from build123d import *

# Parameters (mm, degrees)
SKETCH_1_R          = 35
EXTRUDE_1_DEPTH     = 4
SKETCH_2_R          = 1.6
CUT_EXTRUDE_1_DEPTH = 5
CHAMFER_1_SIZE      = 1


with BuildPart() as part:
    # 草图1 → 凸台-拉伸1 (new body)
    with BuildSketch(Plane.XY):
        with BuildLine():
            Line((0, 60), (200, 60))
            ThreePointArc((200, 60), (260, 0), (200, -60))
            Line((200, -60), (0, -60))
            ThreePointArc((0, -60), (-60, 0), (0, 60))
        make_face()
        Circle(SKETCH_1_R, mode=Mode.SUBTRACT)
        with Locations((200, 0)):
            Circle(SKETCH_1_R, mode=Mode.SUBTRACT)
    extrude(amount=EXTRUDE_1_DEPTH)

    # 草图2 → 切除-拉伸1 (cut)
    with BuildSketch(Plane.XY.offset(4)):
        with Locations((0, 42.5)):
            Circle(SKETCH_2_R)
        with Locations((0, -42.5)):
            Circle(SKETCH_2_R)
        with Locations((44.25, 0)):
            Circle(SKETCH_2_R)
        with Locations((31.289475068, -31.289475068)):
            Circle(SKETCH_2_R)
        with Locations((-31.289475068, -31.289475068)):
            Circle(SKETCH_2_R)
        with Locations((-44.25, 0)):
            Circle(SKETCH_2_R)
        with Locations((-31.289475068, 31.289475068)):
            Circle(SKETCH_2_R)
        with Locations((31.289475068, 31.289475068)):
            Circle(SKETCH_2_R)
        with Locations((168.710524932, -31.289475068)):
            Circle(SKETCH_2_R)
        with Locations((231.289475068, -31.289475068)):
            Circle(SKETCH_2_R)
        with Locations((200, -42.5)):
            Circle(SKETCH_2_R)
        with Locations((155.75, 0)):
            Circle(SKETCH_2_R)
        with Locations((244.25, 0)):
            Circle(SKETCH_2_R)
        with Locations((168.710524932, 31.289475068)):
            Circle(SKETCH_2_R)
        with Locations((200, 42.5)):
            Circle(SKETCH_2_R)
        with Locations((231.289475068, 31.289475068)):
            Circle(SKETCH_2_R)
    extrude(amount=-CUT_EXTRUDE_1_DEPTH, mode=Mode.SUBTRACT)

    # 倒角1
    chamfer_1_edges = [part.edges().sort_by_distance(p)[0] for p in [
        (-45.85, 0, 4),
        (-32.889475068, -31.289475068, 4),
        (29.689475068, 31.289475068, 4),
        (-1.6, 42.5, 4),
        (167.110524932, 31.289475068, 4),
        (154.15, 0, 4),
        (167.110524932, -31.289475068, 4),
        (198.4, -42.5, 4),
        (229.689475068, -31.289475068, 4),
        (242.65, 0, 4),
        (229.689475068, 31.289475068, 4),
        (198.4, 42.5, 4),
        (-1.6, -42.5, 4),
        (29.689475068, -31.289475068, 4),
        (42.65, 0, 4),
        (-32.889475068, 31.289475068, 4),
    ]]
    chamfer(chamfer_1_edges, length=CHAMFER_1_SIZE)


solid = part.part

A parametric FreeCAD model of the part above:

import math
import FreeCAD as App
import Part
import Sketcher

V = App.Vector


def edges_at(feature, points):
    """Names of the edges that pass closest to the given points."""
    edges = feature.Shape.Edges
    near = lambda p: min(range(len(edges)), key=lambda i: edges[i].distToShape(Part.Vertex(*p))[0])
    return sorted({f"Edge{near(p) + 1}" for p in points})

doc = App.newDocument("Part")
body = doc.addObject("PartDesign::Body", "Body")

# Sketch on XY plane
sketch1 = body.newObject("Sketcher::SketchObject", "Sketch")
sketch1.AttachmentSupport = (doc.getObject("XY_Plane"), [""])
sketch1.MapMode = "FlatFace"
sketch1.addGeometry([
    Part.LineSegment(V(200, 60, 0), V(0, 60, 0)),  # 0
    Part.ArcOfCircle(Part.Circle(V(0, 0, 0), V(0, 0, 1), 60), math.radians(90), math.radians(270)),  # 1
    Part.LineSegment(V(0, -60, 0), V(200, -60, 0)),  # 2
    Part.ArcOfCircle(Part.Circle(V(200, 0, 0), V(0, 0, 1), 60), math.radians(-90), math.radians(90)),  # 3
    Part.Circle(V(200, 0, 0), V(0, 0, 1), 35),  # 4
    Part.Circle(V(0, 0, 0), V(0, 0, 1), 35),  # 5
], False)
sketch1.addConstraint([
    Sketcher.Constraint("Tangent", 0, 2, 1, 1),
    Sketcher.Constraint("Tangent", 1, 2, 2, 1),
    Sketcher.Constraint("Tangent", 2, 2, 3, 1),
    Sketcher.Constraint("Tangent", 3, 2, 0, 1),
    Sketcher.Constraint("Horizontal", 0),
    Sketcher.Constraint("Horizontal", 2),
    Sketcher.Constraint("Coincident", 1, 3, -1, 1),
    Sketcher.Constraint("Coincident", 5, 3, -1, 1),
    Sketcher.Constraint("Coincident", 4, 3, 3, 3),
    Sketcher.Constraint("Equal", 4, 5),
    Sketcher.Constraint("Diameter", 4, 70.0),
    Sketcher.Constraint("Radius", 1, 60.0),
    Sketcher.Constraint("DistanceX", 0, 2, 0, 1, 200.0),
])
pad1 = body.newObject("PartDesign::Pad", "Pad")
pad1.Profile = sketch1
pad1.Length = 4

# Sketch on XY plane
sketch2 = body.newObject("Sketcher::SketchObject", "Sketch001")
sketch2.AttachmentSupport = (doc.getObject("XY_Plane"), [""])
sketch2.MapMode = "FlatFace"
sketch2.AttachmentOffset = App.Placement(V(0, 0, 4), App.Rotation())
sketch2.addGeometry([
    Part.Circle(V(0, 42.5, 0), V(0, 0, 1), 1.6),  # 0
    Part.Circle(V(0, -42.5, 0), V(0, 0, 1), 1.6),  # 1
    Part.Circle(V(44.2, 0, 0), V(0, 0, 1), 1.6),  # 2
    Part.Circle(V(31.3, -31.3, 0), V(0, 0, 1), 1.6),  # 3
    Part.Circle(V(-31.3, -31.3, 0), V(0, 0, 1), 1.6),  # 4
    Part.Circle(V(-44.2, 0, 0), V(0, 0, 1), 1.6),  # 5
    Part.Circle(V(-31.3, 31.3, 0), V(0, 0, 1), 1.6),  # 6
    Part.Circle(V(31.3, 31.3, 0), V(0, 0, 1), 1.6),  # 7
    Part.Circle(V(168.7, -31.3, 0), V(0, 0, 1), 1.6),  # 8
    Part.Circle(V(231.3, -31.3, 0), V(0, 0, 1), 1.6),  # 9
    Part.Circle(V(200, -42.5, 0), V(0, 0, 1), 1.6),  # 10
    Part.Circle(V(155.8, 0, 0), V(0, 0, 1), 1.6),  # 11
    Part.Circle(V(244.2, 0, 0), V(0, 0, 1), 1.6),  # 12
    Part.Circle(V(168.7, 31.3, 0), V(0, 0, 1), 1.6),  # 13
    Part.Circle(V(200, 42.5, 0), V(0, 0, 1), 1.6),  # 14
    Part.Circle(V(231.3, 31.3, 0), V(0, 0, 1), 1.6),  # 15
], False)
sketch2.addConstraint([
    Sketcher.Constraint("Equal", 0, 1),
    Sketcher.Constraint("Equal", 1, 2),
    Sketcher.Constraint("Equal", 2, 3),
    Sketcher.Constraint("Equal", 3, 4),
    Sketcher.Constraint("Equal", 4, 5),
    Sketcher.Constraint("Equal", 5, 6),
    Sketcher.Constraint("Equal", 6, 7),
    Sketcher.Constraint("Equal", 7, 8),
    Sketcher.Constraint("Equal", 8, 9),
    Sketcher.Constraint("Equal", 9, 10),
    Sketcher.Constraint("Equal", 10, 11),
    Sketcher.Constraint("Equal", 11, 12),
    Sketcher.Constraint("Equal", 12, 13),
    Sketcher.Constraint("Equal", 13, 14),
    Sketcher.Constraint("Equal", 14, 15),
    Sketcher.Constraint("Symmetric", 0, 3, 1, 3, -1, 1),
    Sketcher.Constraint("Symmetric", 2, 3, 5, 3, -1, 1),
    Sketcher.Constraint("Symmetric", 3, 3, 6, 3, -1, 1),
    Sketcher.Constraint("Symmetric", 4, 3, 7, 3, -1, 1),
    Sketcher.Constraint("Symmetric", 3, 3, 4, 3, -2),
    Sketcher.Constraint("Symmetric", 8, 3, 13, 3, -1),
    Sketcher.Constraint("Symmetric", 10, 3, 14, 3, -1),
    Sketcher.Constraint("Symmetric", 9, 3, 15, 3, -1),
    Sketcher.Constraint("PointOnObject", 0, 3, -2),
    Sketcher.Constraint("PointOnObject", 2, 3, -1),
    Sketcher.Constraint("PointOnObject", 11, 3, -1),
    Sketcher.Constraint("PointOnObject", 12, 3, -1),
    Sketcher.Constraint("Horizontal", 4, 3, 8, 3),
    Sketcher.Constraint("Horizontal", 8, 3, 9, 3),
    Sketcher.Constraint("Horizontal", 1, 3, 10, 3),
    Sketcher.Constraint("Diameter", 0, 3.2),
    Sketcher.Constraint("DistanceX", -1, 1, 10, 3, 200.0),
    Sketcher.Constraint("DistanceY", 1, 3, 0, 3, 85.0),
    Sketcher.Constraint("DistanceX", 3, 3, 9, 3, 200.0),
    Sketcher.Constraint("DistanceX", 2, 3, 12, 3, 200.0),
    Sketcher.Constraint("DistanceX", 5, 3, 2, 3, 88.5),
    Sketcher.Constraint("DistanceX", 2, 3, 11, 3, 111.5),
    Sketcher.Constraint("DistanceX", 4, 3, 3, 3, 62.57895),
    Sketcher.Constraint("DistanceY", 4, 3, 6, 3, 62.57895),
    Sketcher.Constraint("DistanceX", 3, 3, 8, 3, 137.42105),
])
pocket1 = body.newObject("PartDesign::Pocket", "Pocket")
pocket1.Profile = sketch2
pocket1.Length = 5
doc.recompute()

chamfer = body.newObject("PartDesign::Chamfer", "Chamfer")
chamfer.Base = (pocket1, edges_at(pocket1, [
    (-45.85, 0, 4),
    (-32.889, -31.289, 4),
    (29.689, 31.289, 4),
    (-1.6, 42.5, 4),
    (167.111, 31.289, 4),
    (154.15, 0, 4),
    (167.111, -31.289, 4),
    (198.4, -42.5, 4),
    (229.689, -31.289, 4),
    (242.65, 0, 4),
    (229.689, 31.289, 4),
    (198.4, 42.5, 4),
    (-1.6, -42.5, 4),
    (29.689, -31.289, 4),
    (42.65, 0, 4),
    (-32.889, 31.289, 4),
]))
chamfer.Size = 1

doc.recompute()
